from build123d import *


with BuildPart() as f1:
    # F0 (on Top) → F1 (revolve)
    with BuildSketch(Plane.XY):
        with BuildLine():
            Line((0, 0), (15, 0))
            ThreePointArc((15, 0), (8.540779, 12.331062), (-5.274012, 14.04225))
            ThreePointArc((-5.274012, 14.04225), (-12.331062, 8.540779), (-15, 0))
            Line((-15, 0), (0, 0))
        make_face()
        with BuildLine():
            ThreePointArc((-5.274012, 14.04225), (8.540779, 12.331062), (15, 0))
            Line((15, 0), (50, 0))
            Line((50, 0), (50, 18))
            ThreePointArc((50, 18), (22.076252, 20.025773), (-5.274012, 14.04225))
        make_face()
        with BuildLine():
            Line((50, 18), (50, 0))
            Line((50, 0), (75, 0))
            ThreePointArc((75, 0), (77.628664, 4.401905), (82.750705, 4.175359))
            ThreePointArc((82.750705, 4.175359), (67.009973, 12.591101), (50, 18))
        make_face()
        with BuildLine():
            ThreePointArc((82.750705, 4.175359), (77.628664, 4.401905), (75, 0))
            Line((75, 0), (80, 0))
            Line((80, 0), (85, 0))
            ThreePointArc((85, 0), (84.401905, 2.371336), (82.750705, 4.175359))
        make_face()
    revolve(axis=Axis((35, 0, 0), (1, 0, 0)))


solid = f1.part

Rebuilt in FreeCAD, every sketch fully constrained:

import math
import FreeCAD as App
import Part
import Sketcher

doc = App.newDocument("Part")
params = doc.addObject("Spreadsheet::Sheet", "Params")
for row, (alias, value) in enumerate([
    ("sketch1_radius", "14.999999 mm"),
    ("sketch1_radius2", "4.999999 mm"),
    ("sketch1_width", "100 mm"),
    ("revolution_angle", "360 deg"),
], start=1):
    params.set(f"A{row}", alias)
    params.set(f"B{row}", "=" + value)
    params.setAlias(f"B{row}", alias)

body = doc.addObject("PartDesign::Body", "Body")

# Sketch on XY plane
sketch1 = body.newObject("Sketcher::SketchObject", "Sketch")
sketch1.AttachmentSupport = (doc.getObject("XY_Plane"), [""])
sketch1.MapMode = "FlatFace"
sketch1.addGeometry([
    Part.ArcOfCircle(Part.Circle(App.Vector(-0.000001, 0, 0), App.Vector(0, 0, 1), 14.999999), math.radians(110.585257), math.radians(180)),  # 0
    Part.LineSegment(App.Vector(-15, 0, 0), App.Vector(85, 0, 0)),  # 1
    Part.ArcOfCircle(Part.Circle(App.Vector(80.000001, 0.000001, 0), App.Vector(0, 0, 1), 4.999999), math.radians(-0.000008), math.radians(56.623321)),  # 2
    Part.ArcOfCircle(Part.Circle(App.Vector(29.04797, -77.341241, 0), App.Vector(0, 0, 1), 97.616289), math.radians(56.623305), math.radians(77.605791)),  # 3
    Part.ArcOfCircle(Part.Circle(App.Vector(29.047961, -77.34125, 0), App.Vector(0, 0, 1), 97.6163), math.radians(77.605787), math.radians(110.585261)),  # 4
], False)
sketch1.addConstraint([
    Sketcher.Constraint("Coincident", 0, 2, 1, 1),
    Sketcher.Constraint("Coincident", 1, 2, 2, 1),
    Sketcher.Constraint("Coincident", 2, 2, 3, 1),
    Sketcher.Constraint("Coincident", 3, 2, 4, 1),
    Sketcher.Constraint("Coincident", 4, 2, 0, 1),
    Sketcher.Constraint("Horizontal", 1),
    Sketcher.Constraint("Coincident", 0, 3, -1, 1),
    Sketcher.Constraint("PointOnObject", 2, 3, -1),
    Sketcher.Constraint("PointOnObject", 0, 2, -1),
    Sketcher.Constraint("Radius", 0, 14.999999),
    Sketcher.Constraint("Radius", 2, 4.999999),
    Sketcher.Constraint("DistanceX", 1, 1, 1, 2, 100.0),
    Sketcher.Constraint("DistanceX", -1, 1, 3, 2, 50.0),
    Sketcher.Constraint("DistanceY", -1, 1, 3, 2, 18.0),
    Sketcher.Constraint("Radius", 4, 97.6163),
    Sketcher.Constraint("Radius", 3, 97.616289),
    Sketcher.Constraint("DistanceY", 3, 3, 2, 2, 81.5166),
    Sketcher.Constraint("DistanceX", 4, 2, -1, 1, 5.274012),
])
sketch1.setExpression("Constraints[9]", "Params.sketch1_radius")
sketch1.setExpression("Constraints[10]", "Params.sketch1_radius2")
sketch1.setExpression("Constraints[11]", "Params.sketch1_width")
revolution = body.newObject("PartDesign::Revolution", "Revolution")
revolution.Profile = sketch1
revolution.ReferenceAxis = (sketch1, ["H_Axis"])
revolution.setExpression("Angle", "Params.revolution_angle")

doc.recompute()
